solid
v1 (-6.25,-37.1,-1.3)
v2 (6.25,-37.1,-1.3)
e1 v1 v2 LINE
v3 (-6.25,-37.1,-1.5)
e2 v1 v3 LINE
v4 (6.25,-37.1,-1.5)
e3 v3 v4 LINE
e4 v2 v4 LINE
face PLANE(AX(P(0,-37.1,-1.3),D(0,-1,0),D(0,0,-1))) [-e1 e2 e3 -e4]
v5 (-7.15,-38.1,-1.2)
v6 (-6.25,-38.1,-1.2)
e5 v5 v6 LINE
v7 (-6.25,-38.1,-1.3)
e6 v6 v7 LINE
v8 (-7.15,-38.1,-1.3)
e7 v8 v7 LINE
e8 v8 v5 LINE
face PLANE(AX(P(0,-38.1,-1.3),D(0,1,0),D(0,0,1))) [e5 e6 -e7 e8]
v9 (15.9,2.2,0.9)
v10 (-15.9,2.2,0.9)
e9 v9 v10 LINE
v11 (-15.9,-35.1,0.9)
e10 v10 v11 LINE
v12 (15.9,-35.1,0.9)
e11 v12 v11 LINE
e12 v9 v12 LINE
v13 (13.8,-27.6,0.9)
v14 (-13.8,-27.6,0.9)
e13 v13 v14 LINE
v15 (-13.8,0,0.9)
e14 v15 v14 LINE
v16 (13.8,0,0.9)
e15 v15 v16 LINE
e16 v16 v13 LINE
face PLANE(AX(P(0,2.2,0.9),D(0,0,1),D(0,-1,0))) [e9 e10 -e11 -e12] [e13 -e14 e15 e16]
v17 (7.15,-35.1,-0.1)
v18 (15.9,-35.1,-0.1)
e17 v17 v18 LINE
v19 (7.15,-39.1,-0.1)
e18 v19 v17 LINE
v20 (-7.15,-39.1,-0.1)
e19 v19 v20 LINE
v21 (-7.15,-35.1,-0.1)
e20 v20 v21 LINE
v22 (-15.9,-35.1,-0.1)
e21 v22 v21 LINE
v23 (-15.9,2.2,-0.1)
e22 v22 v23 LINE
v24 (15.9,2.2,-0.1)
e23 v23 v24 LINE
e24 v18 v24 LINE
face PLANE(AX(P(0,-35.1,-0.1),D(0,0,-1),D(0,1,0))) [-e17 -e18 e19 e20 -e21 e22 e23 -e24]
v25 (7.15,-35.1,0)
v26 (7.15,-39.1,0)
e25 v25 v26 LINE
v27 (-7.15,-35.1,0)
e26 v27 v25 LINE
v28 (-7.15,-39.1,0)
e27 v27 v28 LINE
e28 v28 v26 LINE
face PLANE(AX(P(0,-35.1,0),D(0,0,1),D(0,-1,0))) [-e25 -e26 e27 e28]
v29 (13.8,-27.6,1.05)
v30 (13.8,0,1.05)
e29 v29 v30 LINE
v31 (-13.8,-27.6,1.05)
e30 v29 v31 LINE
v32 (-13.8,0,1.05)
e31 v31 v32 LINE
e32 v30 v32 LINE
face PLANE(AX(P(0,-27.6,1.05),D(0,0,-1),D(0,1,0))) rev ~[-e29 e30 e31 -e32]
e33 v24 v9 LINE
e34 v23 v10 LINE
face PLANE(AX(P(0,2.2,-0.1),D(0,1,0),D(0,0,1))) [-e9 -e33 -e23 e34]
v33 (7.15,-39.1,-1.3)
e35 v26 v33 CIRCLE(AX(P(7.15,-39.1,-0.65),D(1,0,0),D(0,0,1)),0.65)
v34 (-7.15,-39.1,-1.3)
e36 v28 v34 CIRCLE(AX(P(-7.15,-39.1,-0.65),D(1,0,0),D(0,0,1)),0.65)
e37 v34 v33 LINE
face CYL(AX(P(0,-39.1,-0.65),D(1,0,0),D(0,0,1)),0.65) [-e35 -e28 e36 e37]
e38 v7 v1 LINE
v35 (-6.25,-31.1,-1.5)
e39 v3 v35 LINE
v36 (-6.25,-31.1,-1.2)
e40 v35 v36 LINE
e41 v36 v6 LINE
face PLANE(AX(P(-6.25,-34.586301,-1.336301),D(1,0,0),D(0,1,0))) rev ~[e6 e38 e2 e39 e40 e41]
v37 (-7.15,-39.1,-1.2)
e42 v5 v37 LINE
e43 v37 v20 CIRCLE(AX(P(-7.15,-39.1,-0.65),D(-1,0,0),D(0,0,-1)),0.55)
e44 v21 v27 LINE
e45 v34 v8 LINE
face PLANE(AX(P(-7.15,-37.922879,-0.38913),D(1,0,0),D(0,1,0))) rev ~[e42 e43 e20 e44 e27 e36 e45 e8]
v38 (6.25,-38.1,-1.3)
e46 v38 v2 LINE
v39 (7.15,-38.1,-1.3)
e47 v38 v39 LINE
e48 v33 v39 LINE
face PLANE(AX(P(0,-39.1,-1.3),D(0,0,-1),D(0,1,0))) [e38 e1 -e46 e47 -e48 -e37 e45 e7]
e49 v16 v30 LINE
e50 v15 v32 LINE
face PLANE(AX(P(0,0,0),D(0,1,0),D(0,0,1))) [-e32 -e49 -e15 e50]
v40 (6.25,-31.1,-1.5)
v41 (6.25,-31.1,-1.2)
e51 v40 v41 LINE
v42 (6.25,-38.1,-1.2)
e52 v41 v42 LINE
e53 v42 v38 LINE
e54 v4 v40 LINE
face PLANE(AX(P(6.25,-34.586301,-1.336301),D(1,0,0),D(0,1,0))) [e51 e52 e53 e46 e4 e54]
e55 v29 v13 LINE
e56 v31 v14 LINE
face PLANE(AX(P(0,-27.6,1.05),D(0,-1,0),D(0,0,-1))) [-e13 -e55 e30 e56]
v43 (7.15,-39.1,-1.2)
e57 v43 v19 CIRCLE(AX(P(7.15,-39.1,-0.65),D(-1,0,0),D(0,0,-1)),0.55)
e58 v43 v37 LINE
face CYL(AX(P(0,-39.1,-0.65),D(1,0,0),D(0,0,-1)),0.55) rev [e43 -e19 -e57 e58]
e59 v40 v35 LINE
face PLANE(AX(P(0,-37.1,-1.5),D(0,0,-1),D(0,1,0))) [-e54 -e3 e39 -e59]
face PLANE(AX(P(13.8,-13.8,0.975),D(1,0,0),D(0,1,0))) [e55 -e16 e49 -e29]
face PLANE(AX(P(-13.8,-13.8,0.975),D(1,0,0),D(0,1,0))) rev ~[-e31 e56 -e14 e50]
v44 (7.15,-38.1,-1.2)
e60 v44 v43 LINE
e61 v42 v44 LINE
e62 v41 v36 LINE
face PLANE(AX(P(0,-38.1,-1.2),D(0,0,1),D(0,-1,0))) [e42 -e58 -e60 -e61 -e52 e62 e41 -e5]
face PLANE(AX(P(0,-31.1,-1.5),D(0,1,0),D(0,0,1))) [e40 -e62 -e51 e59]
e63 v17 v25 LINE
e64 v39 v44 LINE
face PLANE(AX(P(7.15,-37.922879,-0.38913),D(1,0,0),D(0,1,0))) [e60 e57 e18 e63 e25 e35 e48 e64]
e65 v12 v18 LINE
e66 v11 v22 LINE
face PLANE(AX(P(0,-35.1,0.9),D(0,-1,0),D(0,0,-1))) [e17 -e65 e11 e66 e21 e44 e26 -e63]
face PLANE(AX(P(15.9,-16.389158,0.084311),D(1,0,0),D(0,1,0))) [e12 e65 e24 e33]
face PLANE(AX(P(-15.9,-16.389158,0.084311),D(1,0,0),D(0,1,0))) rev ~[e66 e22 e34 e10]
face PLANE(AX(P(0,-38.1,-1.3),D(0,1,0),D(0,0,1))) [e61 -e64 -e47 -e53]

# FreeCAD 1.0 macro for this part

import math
import FreeCAD as App
import Part
import Sketcher

V = App.Vector
Q = App.Units.Quantity

doc = App.newDocument("Part")
body = doc.addObject("PartDesign::Body", "Body")

# Sketch on YZ plane
sketch1 = body.newObject("Sketcher::SketchObject", "Sketch")
sketch1.AttachmentSupport = (doc.getObject("YZ_Plane"), [""])
sketch1.MapMode = "FlatFace"
sketch1.addGeometry(Part.LineSegment(V(-27.6, 1.05, 0), V(-27.6, 0, 0)), False)
sketch1.addGeometry(Part.LineSegment(V(-27.6, 0, 0), V(0, 0, 0)), False)
sketch1.addGeometry(Part.LineSegment(V(0, 0, 0), V(0, 1.05, 0)), False)
sketch1.addGeometry(Part.LineSegment(V(0, 1.05, 0), V(-27.6, 1.05, 0)), False)
sketch1.addConstraint(Sketcher.Constraint("Coincident", 0, 2, 1, 1))
sketch1.addConstraint(Sketcher.Constraint("Coincident", 1, 2, 2, 1))
sketch1.addConstraint(Sketcher.Constraint("Coincident", 2, 2, 3, 1))
sketch1.addConstraint(Sketcher.Constraint("Coincident", 3, 2, 0, 1))
sketch1.addConstraint(Sketcher.Constraint("Vertical", 0))
sketch1.addConstraint(Sketcher.Constraint("Horizontal", 1))
sketch1.addConstraint(Sketcher.Constraint("Vertical", 2))
sketch1.addConstraint(Sketcher.Constraint("Horizontal", 3))
sketch1.addConstraint(Sketcher.Constraint("Coincident", 1, 2, -1, 1))
sketch1.addConstraint(Sketcher.Constraint("DistanceX", 1, 1, 1, 2, Q("27.6 mm")))
sketch1.addConstraint(Sketcher.Constraint("DistanceY", 0, 2, 0, 1, Q("1.05 mm")))
pad1 = body.newObject("PartDesign::Pad", "Pad")
pad1.Profile = sketch1
pad1.Length = 27.6
pad1.Midplane = True

# Sketch on YZ plane
sketch2 = body.newObject("Sketcher::SketchObject", "Sketch001")
sketch2.AttachmentSupport = (doc.getObject("YZ_Plane"), [""])
sketch2.MapMode = "FlatFace"
sketch2.addGeometry(Part.LineSegment(V(-35.1, 0.9, 0), V(-35.1, -0.1, 0)), False)
sketch2.addGeometry(Part.LineSegment(V(-35.1, -0.1, 0), V(2.2, -0.1, 0)), False)
sketch2.addGeometry(Part.LineSegment(V(2.2, -0.1, 0), V(2.2, 0.9, 0)), False)
sketch2.addGeometry(Part.LineSegment(V(2.2, 0.9, 0), V(-35.1, 0.9, 0)), False)
sketch2.addConstraint(Sketcher.Constraint("Coincident", 0, 2, 1, 1))
sketch2.addConstraint(Sketcher.Constraint("Coincident", 1, 2, 2, 1))
sketch2.addConstraint(Sketcher.Constraint("Coincident", 2, 2, 3, 1))
sketch2.addConstraint(Sketcher.Constraint("Coincident", 3, 2, 0, 1))
sketch2.addConstraint(Sketcher.Constraint("Vertical", 0))
sketch2.addConstraint(Sketcher.Constraint("Horizontal", 1))
sketch2.addConstraint(Sketcher.Constraint("Vertical", 2))
sketch2.addConstraint(Sketcher.Constraint("Horizontal", 3))
sketch2.addConstraint(Sketcher.Constraint("DistanceY", 0, 2, 0, 1, Q("1 mm")))
sketch2.addConstraint(Sketcher.Constraint("DistanceX", 1, 1, 1, 2, Q("37.3 mm")))
sketch2.addConstraint(Sketcher.Constraint("DistanceX", 0, 2, -1, 1, Q("35.1 mm")))
sketch2.addConstraint(Sketcher.Constraint("DistanceY", 0, 2, -1, 1, Q("0.1 mm")))
pad2 = body.newObject("PartDesign::Pad", "Pad001")
pad2.Profile = sketch2
pad2.Length = 31.8
pad2.Midplane = True

# Sketch on YZ plane
sketch3 = body.newObject("Sketcher::SketchObject", "Sketch002")
sketch3.AttachmentSupport = (doc.getObject("YZ_Plane"), [""])
sketch3.MapMode = "FlatFace"
sketch3.addGeometry(Part.LineSegment(V(-35.1, -0.1, 0), V(-35.1, 0, 0)), False)
sketch3.addGeometry(Part.LineSegment(V(-35.1, 0, 0), V(-39.1, 0, 0)), False)
sketch3.addGeometry(Part.ArcOfCircle(Part.Circle(V(-39.1, -0.65, 0), V(0, 0, 1), 0.65), math.radians(90), math.radians(270)), False)
sketch3.addGeometry(Part.LineSegment(V(-39.1, -1.3, 0), V(-38.1, -1.3, 0)), False)
sketch3.addGeometry(Part.LineSegment(V(-38.1, -1.3, 0), V(-38.1, -1.2, 0)), False)
sketch3.addGeometry(Part.LineSegment(V(-38.1, -1.2, 0), V(-39.1, -1.2, 0)), False)
sketch3.addGeometry(Part.ArcOfCircle(Part.Circle(V(-39.1, -0.65, 0), V(0, 0, 1), 0.55), math.radians(90), math.radians(270)), False)
sketch3.addGeometry(Part.LineSegment(V(-39.1, -0.1, 0), V(-35.1, -0.1, 0)), False)
sketch3.addConstraint(Sketcher.Constraint("Coincident", 0, 2, 1, 1))
sketch3.addConstraint(Sketcher.Constraint("Tangent", 1, 2, 2, 1))
sketch3.addConstraint(Sketcher.Constraint("Tangent", 2, 2, 3, 1))
sketch3.addConstraint(Sketcher.Constraint("Coincident", 3, 2, 4, 1))
sketch3.addConstraint(Sketcher.Constraint("Coincident", 4, 2, 5, 1))
sketch3.addConstraint(Sketcher.Constraint("Tangent", 5, 2, 6, 2))
sketch3.addConstraint(Sketcher.Constraint("Tangent", 6, 1, 7, 1))
sketch3.addConstraint(Sketcher.Constraint("Coincident", 7, 2, 0, 1))
sketch3.addConstraint(Sketcher.Constraint("Vertical", 0))
sketch3.addConstraint(Sketcher.Constraint("Horizontal", 1))
sketch3.addConstraint(Sketcher.Constraint("Horizontal", 3))
sketch3.addConstraint(Sketcher.Constraint("Vertical", 4))
sketch3.addConstraint(Sketcher.Constraint("Horizontal", 5))
sketch3.addConstraint(Sketcher.Constraint("Horizontal", 7))
sketch3.addConstraint(Sketcher.Constraint("Coincident", 6, 3, 2, 3))
sketch3.addConstraint(Sketcher.Constraint("PointOnObject", 0, 2, -1))
sketch3.addConstraint(Sketcher.Constraint("DistanceX", 1, 2, 1, 1, Q("4 mm")))
sketch3.addConstraint(Sketcher.Constraint("DistanceX", 3, 1, 3, 2, Q("1 mm")))
sketch3.addConstraint(Sketcher.Constraint("Radius", 2, Q("0.65 mm")))
sketch3.addConstraint(Sketcher.Constraint("Radius", 6, Q("0.55 mm")))
sketch3.addConstraint(Sketcher.Constraint("DistanceX", 2, 3, -1, 1, Q("39.1 mm")))
pad3 = body.newObject("PartDesign::Pad", "Pad002")
pad3.Profile = sketch3
pad3.Length = 14.3
pad3.Midplane = True

# Sketch on YZ plane
sketch4 = body.newObject("Sketcher::SketchObject", "Sketch003")
sketch4.AttachmentSupport = (doc.getObject("YZ_Plane"), [""])
sketch4.MapMode = "FlatFace"
sketch4.addGeometry(Part.LineSegment(V(-38.1, -1.2, 0), V(-38.1, -1.3, 0)), False)
sketch4.addGeometry(Part.LineSegment(V(-38.1, -1.3, 0), V(-37.1, -1.3, 0)), False)
sketch4.addGeometry(Part.LineSegment(V(-37.1, -1.3, 0), V(-37.1, -1.5, 0)), False)
sketch4.addGeometry(Part.LineSegment(V(-37.1, -1.5, 0), V(-31.1, -1.5, 0)), False)
sketch4.addGeometry(Part.LineSegment(V(-31.1, -1.5, 0), V(-31.1, -1.2, 0)), False)
sketch4.addGeometry(Part.LineSegment(V(-31.1, -1.2, 0), V(-38.1, -1.2, 0)), False)
sketch4.addConstraint(Sketcher.Constraint("Coincident", 0, 2, 1, 1))
sketch4.addConstraint(Sketcher.Constraint("Coincident", 1, 2, 2, 1))
sketch4.addConstraint(Sketcher.Constraint("Coincident", 2, 2, 3, 1))
sketch4.addConstraint(Sketcher.Constraint("Coincident", 3, 2, 4, 1))
sketch4.addConstraint(Sketcher.Constraint("Coincident", 4, 2, 5, 1))
sketch4.addConstraint(Sketcher.Constraint("Coincident", 5, 2, 0, 1))
sketch4.addConstraint(Sketcher.Constraint("Vertical", 0))
sketch4.addConstraint(Sketcher.Constraint("Horizontal", 1))
sketch4.addConstraint(Sketcher.Constraint("Vertical", 2))
sketch4.addConstraint(Sketcher.Constraint("Horizontal", 3))
sketch4.addConstraint(Sketcher.Constraint("Vertical", 4))
sketch4.addConstraint(Sketcher.Constraint("Horizontal", 5))
sketch4.addConstraint(Sketcher.Constraint("DistanceX", 1, 1, 1, 2, Q("1 mm")))
sketch4.addConstraint(Sketcher.Constraint("DistanceX", 3, 1, 3, 2, Q("6 mm")))
sketch4.addConstraint(Sketcher.Constraint("DistanceY", 0, 2, 0, 1, Q("0.1 mm")))
sketch4.addConstraint(Sketcher.Constraint("DistanceY", 2, 2, 2, 1, Q("0.2 mm")))
sketch4.addConstraint(Sketcher.Constraint("DistanceX", 0, 2, -1, 1, Q("38.1 mm")))
sketch4.addConstraint(Sketcher.Constraint("DistanceY", 0, 2, -1, 1, Q("1.3 mm")))
pad4 = body.newObject("PartDesign::Pad", "Pad003")
pad4.Profile = sketch4
pad4.Length = 12.5
pad4.Midplane = True

doc.recompute()
